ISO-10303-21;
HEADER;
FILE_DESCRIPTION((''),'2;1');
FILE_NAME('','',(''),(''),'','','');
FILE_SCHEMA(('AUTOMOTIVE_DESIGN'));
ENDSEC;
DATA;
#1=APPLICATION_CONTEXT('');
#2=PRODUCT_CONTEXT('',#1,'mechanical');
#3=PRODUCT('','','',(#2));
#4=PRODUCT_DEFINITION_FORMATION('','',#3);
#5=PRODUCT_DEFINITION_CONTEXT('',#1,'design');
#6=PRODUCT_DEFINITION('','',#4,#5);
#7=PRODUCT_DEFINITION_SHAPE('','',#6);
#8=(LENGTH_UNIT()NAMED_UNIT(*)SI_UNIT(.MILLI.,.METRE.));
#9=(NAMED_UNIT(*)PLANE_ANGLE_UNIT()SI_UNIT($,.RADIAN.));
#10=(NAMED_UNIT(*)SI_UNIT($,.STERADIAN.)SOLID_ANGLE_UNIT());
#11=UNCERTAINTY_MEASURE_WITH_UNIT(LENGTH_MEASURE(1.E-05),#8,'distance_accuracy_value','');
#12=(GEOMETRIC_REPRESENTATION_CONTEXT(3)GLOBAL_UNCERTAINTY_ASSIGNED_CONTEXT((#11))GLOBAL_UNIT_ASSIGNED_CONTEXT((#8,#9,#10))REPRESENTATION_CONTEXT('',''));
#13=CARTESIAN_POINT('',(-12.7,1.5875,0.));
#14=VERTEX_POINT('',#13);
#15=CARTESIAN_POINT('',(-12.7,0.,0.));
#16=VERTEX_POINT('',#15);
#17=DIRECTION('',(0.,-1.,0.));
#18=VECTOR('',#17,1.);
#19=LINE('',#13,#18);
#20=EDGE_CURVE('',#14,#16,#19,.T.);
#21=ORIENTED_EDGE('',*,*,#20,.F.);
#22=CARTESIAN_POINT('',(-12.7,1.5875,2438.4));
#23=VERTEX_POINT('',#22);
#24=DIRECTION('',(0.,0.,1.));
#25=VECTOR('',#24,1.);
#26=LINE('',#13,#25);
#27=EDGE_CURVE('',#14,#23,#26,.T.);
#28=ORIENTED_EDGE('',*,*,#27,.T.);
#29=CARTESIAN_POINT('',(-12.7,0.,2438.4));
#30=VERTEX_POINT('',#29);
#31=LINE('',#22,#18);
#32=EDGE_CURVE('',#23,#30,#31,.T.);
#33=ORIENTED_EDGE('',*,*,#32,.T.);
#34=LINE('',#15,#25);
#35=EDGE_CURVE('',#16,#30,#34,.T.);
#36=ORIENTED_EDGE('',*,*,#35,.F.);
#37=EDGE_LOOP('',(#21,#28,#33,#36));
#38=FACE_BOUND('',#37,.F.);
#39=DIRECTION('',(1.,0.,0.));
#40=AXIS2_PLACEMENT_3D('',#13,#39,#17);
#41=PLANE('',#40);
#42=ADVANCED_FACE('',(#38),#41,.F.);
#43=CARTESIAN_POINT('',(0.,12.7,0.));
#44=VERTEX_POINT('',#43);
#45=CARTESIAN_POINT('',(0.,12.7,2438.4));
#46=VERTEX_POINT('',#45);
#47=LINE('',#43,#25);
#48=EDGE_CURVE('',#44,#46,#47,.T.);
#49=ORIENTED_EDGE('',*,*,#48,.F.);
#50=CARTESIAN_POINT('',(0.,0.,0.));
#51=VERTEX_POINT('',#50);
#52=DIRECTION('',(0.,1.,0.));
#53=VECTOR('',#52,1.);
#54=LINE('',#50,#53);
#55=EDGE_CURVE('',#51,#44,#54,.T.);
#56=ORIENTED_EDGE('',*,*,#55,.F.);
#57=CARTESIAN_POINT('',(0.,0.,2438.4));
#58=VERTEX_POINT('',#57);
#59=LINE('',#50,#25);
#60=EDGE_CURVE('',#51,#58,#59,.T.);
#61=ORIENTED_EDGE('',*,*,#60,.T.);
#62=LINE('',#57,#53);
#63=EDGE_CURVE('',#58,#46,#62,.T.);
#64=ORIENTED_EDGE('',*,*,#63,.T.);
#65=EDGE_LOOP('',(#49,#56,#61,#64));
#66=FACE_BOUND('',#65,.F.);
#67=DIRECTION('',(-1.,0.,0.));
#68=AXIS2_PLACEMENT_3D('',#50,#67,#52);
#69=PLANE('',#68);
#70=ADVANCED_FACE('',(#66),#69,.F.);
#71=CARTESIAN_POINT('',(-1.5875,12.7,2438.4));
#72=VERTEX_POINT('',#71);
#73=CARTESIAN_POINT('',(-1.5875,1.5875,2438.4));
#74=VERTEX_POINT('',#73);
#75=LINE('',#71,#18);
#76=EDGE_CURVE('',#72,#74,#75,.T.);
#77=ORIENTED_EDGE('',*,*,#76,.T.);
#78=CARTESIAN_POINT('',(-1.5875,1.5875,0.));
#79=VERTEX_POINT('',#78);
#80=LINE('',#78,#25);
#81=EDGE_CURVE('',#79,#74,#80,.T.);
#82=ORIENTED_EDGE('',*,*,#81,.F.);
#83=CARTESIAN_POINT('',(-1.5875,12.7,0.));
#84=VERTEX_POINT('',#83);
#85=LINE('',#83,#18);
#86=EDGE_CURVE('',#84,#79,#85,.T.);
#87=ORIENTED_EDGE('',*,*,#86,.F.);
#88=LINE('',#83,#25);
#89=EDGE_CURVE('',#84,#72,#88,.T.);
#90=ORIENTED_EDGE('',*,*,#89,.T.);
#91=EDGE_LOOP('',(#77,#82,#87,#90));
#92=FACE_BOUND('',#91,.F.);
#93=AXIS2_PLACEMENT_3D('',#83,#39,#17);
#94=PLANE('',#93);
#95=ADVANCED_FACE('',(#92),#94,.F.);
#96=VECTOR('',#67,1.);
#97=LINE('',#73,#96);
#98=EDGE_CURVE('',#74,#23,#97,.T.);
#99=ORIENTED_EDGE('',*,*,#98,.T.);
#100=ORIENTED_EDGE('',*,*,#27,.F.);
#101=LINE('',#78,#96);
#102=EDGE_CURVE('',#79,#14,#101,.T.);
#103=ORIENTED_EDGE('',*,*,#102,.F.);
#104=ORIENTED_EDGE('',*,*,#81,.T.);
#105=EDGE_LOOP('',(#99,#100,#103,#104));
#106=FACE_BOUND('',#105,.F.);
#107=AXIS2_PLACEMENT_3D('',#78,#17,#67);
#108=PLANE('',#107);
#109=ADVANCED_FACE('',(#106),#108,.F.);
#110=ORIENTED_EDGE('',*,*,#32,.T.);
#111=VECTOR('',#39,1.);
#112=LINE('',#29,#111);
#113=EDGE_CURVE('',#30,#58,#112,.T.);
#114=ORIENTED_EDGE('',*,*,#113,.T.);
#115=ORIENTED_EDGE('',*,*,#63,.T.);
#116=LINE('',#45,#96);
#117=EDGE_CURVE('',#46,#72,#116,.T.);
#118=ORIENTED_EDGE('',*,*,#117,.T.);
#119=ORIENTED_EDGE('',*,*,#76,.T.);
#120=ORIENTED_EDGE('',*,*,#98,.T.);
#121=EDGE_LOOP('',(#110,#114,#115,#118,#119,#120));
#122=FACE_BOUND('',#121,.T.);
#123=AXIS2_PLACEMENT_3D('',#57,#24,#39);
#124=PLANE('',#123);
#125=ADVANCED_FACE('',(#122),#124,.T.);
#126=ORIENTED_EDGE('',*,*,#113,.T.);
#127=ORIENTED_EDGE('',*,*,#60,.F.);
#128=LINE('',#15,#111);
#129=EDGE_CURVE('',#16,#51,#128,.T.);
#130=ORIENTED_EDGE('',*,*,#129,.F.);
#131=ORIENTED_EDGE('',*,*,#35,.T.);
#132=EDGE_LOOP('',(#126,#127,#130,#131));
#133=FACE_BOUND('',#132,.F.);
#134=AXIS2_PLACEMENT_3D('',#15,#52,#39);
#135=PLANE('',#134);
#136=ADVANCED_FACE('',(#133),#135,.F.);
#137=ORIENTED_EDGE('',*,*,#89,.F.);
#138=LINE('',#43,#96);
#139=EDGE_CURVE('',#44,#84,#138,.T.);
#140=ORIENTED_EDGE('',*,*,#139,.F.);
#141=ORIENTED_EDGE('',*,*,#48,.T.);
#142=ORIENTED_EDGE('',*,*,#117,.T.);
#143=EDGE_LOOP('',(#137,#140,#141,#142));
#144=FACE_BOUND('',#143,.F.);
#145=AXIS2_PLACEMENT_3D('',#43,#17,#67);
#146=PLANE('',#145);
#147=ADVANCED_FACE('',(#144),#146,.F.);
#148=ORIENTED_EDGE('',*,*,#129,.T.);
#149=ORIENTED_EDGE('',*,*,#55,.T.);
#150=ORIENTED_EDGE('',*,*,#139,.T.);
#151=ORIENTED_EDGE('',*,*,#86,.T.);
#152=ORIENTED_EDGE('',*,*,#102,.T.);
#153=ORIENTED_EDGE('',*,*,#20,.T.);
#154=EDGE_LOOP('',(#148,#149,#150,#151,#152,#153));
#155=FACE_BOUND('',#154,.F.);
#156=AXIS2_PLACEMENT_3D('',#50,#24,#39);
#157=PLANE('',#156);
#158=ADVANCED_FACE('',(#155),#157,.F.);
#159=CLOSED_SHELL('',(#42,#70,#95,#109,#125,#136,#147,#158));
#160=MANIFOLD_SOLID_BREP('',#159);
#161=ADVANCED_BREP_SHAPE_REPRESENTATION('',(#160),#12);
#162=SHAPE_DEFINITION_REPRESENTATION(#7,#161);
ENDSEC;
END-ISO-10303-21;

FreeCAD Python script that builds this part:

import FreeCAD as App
import Part
import Sketcher
from FreeCAD import Vector
Q = App.Units.Quantity


def add_polygon(sketch, points):
    """Adds a closed chain of lines whose ends are joined by coincident constraints."""
    first, n = sketch.GeometryCount, len(points)
    for a, b in zip(points, points[1:] + points[:1]):
        sketch.addGeometry(Part.LineSegment(App.Vector(*a, 0), App.Vector(*b, 0)), False)
    for i in range(n):
        sketch.addConstraint(Sketcher.Constraint("Coincident", first + i, 2, first + (i + 1) % n, 1))

doc = App.newDocument("Part")
body = doc.addObject("PartDesign::Body", "Body")

# Sketch on XY plane
sketch1 = body.newObject("Sketcher::SketchObject", "Sketch")
sketch1.AttachmentSupport = (doc.getObject("XY_Plane"), [""])
sketch1.MapMode = "FlatFace"
add_polygon(sketch1, [(-12.7, 0), (0, 0), (0, 12.7), (-1.6, 12.7), (-1.6, 1.6), (-12.7, 1.6)])  # lines 0-5
sketch1.addConstraint([
    Sketcher.Constraint("Horizontal", 0),
    Sketcher.Constraint("Vertical", 1),
    Sketcher.Constraint("Horizontal", 2),
    Sketcher.Constraint("Vertical", 3),
    Sketcher.Constraint("Horizontal", 4),
    Sketcher.Constraint("Vertical", 5),
    Sketcher.Constraint("Coincident", 0, 2, -1, 1),
    Sketcher.Constraint("Equal", 0, 1),
    Sketcher.Constraint("Equal", 4, 3),
    Sketcher.Constraint("DistanceX", 0, 1, 0, 2, Q("0.5 in")),
    Sketcher.Constraint("DistanceX", 2, 2, 2, 1, Q("0.0625 in")),
])
pad1 = body.newObject("PartDesign::Pad", "Pad")
pad1.Profile = sketch1
pad1.Length = Q("96 in")

doc.recompute()
